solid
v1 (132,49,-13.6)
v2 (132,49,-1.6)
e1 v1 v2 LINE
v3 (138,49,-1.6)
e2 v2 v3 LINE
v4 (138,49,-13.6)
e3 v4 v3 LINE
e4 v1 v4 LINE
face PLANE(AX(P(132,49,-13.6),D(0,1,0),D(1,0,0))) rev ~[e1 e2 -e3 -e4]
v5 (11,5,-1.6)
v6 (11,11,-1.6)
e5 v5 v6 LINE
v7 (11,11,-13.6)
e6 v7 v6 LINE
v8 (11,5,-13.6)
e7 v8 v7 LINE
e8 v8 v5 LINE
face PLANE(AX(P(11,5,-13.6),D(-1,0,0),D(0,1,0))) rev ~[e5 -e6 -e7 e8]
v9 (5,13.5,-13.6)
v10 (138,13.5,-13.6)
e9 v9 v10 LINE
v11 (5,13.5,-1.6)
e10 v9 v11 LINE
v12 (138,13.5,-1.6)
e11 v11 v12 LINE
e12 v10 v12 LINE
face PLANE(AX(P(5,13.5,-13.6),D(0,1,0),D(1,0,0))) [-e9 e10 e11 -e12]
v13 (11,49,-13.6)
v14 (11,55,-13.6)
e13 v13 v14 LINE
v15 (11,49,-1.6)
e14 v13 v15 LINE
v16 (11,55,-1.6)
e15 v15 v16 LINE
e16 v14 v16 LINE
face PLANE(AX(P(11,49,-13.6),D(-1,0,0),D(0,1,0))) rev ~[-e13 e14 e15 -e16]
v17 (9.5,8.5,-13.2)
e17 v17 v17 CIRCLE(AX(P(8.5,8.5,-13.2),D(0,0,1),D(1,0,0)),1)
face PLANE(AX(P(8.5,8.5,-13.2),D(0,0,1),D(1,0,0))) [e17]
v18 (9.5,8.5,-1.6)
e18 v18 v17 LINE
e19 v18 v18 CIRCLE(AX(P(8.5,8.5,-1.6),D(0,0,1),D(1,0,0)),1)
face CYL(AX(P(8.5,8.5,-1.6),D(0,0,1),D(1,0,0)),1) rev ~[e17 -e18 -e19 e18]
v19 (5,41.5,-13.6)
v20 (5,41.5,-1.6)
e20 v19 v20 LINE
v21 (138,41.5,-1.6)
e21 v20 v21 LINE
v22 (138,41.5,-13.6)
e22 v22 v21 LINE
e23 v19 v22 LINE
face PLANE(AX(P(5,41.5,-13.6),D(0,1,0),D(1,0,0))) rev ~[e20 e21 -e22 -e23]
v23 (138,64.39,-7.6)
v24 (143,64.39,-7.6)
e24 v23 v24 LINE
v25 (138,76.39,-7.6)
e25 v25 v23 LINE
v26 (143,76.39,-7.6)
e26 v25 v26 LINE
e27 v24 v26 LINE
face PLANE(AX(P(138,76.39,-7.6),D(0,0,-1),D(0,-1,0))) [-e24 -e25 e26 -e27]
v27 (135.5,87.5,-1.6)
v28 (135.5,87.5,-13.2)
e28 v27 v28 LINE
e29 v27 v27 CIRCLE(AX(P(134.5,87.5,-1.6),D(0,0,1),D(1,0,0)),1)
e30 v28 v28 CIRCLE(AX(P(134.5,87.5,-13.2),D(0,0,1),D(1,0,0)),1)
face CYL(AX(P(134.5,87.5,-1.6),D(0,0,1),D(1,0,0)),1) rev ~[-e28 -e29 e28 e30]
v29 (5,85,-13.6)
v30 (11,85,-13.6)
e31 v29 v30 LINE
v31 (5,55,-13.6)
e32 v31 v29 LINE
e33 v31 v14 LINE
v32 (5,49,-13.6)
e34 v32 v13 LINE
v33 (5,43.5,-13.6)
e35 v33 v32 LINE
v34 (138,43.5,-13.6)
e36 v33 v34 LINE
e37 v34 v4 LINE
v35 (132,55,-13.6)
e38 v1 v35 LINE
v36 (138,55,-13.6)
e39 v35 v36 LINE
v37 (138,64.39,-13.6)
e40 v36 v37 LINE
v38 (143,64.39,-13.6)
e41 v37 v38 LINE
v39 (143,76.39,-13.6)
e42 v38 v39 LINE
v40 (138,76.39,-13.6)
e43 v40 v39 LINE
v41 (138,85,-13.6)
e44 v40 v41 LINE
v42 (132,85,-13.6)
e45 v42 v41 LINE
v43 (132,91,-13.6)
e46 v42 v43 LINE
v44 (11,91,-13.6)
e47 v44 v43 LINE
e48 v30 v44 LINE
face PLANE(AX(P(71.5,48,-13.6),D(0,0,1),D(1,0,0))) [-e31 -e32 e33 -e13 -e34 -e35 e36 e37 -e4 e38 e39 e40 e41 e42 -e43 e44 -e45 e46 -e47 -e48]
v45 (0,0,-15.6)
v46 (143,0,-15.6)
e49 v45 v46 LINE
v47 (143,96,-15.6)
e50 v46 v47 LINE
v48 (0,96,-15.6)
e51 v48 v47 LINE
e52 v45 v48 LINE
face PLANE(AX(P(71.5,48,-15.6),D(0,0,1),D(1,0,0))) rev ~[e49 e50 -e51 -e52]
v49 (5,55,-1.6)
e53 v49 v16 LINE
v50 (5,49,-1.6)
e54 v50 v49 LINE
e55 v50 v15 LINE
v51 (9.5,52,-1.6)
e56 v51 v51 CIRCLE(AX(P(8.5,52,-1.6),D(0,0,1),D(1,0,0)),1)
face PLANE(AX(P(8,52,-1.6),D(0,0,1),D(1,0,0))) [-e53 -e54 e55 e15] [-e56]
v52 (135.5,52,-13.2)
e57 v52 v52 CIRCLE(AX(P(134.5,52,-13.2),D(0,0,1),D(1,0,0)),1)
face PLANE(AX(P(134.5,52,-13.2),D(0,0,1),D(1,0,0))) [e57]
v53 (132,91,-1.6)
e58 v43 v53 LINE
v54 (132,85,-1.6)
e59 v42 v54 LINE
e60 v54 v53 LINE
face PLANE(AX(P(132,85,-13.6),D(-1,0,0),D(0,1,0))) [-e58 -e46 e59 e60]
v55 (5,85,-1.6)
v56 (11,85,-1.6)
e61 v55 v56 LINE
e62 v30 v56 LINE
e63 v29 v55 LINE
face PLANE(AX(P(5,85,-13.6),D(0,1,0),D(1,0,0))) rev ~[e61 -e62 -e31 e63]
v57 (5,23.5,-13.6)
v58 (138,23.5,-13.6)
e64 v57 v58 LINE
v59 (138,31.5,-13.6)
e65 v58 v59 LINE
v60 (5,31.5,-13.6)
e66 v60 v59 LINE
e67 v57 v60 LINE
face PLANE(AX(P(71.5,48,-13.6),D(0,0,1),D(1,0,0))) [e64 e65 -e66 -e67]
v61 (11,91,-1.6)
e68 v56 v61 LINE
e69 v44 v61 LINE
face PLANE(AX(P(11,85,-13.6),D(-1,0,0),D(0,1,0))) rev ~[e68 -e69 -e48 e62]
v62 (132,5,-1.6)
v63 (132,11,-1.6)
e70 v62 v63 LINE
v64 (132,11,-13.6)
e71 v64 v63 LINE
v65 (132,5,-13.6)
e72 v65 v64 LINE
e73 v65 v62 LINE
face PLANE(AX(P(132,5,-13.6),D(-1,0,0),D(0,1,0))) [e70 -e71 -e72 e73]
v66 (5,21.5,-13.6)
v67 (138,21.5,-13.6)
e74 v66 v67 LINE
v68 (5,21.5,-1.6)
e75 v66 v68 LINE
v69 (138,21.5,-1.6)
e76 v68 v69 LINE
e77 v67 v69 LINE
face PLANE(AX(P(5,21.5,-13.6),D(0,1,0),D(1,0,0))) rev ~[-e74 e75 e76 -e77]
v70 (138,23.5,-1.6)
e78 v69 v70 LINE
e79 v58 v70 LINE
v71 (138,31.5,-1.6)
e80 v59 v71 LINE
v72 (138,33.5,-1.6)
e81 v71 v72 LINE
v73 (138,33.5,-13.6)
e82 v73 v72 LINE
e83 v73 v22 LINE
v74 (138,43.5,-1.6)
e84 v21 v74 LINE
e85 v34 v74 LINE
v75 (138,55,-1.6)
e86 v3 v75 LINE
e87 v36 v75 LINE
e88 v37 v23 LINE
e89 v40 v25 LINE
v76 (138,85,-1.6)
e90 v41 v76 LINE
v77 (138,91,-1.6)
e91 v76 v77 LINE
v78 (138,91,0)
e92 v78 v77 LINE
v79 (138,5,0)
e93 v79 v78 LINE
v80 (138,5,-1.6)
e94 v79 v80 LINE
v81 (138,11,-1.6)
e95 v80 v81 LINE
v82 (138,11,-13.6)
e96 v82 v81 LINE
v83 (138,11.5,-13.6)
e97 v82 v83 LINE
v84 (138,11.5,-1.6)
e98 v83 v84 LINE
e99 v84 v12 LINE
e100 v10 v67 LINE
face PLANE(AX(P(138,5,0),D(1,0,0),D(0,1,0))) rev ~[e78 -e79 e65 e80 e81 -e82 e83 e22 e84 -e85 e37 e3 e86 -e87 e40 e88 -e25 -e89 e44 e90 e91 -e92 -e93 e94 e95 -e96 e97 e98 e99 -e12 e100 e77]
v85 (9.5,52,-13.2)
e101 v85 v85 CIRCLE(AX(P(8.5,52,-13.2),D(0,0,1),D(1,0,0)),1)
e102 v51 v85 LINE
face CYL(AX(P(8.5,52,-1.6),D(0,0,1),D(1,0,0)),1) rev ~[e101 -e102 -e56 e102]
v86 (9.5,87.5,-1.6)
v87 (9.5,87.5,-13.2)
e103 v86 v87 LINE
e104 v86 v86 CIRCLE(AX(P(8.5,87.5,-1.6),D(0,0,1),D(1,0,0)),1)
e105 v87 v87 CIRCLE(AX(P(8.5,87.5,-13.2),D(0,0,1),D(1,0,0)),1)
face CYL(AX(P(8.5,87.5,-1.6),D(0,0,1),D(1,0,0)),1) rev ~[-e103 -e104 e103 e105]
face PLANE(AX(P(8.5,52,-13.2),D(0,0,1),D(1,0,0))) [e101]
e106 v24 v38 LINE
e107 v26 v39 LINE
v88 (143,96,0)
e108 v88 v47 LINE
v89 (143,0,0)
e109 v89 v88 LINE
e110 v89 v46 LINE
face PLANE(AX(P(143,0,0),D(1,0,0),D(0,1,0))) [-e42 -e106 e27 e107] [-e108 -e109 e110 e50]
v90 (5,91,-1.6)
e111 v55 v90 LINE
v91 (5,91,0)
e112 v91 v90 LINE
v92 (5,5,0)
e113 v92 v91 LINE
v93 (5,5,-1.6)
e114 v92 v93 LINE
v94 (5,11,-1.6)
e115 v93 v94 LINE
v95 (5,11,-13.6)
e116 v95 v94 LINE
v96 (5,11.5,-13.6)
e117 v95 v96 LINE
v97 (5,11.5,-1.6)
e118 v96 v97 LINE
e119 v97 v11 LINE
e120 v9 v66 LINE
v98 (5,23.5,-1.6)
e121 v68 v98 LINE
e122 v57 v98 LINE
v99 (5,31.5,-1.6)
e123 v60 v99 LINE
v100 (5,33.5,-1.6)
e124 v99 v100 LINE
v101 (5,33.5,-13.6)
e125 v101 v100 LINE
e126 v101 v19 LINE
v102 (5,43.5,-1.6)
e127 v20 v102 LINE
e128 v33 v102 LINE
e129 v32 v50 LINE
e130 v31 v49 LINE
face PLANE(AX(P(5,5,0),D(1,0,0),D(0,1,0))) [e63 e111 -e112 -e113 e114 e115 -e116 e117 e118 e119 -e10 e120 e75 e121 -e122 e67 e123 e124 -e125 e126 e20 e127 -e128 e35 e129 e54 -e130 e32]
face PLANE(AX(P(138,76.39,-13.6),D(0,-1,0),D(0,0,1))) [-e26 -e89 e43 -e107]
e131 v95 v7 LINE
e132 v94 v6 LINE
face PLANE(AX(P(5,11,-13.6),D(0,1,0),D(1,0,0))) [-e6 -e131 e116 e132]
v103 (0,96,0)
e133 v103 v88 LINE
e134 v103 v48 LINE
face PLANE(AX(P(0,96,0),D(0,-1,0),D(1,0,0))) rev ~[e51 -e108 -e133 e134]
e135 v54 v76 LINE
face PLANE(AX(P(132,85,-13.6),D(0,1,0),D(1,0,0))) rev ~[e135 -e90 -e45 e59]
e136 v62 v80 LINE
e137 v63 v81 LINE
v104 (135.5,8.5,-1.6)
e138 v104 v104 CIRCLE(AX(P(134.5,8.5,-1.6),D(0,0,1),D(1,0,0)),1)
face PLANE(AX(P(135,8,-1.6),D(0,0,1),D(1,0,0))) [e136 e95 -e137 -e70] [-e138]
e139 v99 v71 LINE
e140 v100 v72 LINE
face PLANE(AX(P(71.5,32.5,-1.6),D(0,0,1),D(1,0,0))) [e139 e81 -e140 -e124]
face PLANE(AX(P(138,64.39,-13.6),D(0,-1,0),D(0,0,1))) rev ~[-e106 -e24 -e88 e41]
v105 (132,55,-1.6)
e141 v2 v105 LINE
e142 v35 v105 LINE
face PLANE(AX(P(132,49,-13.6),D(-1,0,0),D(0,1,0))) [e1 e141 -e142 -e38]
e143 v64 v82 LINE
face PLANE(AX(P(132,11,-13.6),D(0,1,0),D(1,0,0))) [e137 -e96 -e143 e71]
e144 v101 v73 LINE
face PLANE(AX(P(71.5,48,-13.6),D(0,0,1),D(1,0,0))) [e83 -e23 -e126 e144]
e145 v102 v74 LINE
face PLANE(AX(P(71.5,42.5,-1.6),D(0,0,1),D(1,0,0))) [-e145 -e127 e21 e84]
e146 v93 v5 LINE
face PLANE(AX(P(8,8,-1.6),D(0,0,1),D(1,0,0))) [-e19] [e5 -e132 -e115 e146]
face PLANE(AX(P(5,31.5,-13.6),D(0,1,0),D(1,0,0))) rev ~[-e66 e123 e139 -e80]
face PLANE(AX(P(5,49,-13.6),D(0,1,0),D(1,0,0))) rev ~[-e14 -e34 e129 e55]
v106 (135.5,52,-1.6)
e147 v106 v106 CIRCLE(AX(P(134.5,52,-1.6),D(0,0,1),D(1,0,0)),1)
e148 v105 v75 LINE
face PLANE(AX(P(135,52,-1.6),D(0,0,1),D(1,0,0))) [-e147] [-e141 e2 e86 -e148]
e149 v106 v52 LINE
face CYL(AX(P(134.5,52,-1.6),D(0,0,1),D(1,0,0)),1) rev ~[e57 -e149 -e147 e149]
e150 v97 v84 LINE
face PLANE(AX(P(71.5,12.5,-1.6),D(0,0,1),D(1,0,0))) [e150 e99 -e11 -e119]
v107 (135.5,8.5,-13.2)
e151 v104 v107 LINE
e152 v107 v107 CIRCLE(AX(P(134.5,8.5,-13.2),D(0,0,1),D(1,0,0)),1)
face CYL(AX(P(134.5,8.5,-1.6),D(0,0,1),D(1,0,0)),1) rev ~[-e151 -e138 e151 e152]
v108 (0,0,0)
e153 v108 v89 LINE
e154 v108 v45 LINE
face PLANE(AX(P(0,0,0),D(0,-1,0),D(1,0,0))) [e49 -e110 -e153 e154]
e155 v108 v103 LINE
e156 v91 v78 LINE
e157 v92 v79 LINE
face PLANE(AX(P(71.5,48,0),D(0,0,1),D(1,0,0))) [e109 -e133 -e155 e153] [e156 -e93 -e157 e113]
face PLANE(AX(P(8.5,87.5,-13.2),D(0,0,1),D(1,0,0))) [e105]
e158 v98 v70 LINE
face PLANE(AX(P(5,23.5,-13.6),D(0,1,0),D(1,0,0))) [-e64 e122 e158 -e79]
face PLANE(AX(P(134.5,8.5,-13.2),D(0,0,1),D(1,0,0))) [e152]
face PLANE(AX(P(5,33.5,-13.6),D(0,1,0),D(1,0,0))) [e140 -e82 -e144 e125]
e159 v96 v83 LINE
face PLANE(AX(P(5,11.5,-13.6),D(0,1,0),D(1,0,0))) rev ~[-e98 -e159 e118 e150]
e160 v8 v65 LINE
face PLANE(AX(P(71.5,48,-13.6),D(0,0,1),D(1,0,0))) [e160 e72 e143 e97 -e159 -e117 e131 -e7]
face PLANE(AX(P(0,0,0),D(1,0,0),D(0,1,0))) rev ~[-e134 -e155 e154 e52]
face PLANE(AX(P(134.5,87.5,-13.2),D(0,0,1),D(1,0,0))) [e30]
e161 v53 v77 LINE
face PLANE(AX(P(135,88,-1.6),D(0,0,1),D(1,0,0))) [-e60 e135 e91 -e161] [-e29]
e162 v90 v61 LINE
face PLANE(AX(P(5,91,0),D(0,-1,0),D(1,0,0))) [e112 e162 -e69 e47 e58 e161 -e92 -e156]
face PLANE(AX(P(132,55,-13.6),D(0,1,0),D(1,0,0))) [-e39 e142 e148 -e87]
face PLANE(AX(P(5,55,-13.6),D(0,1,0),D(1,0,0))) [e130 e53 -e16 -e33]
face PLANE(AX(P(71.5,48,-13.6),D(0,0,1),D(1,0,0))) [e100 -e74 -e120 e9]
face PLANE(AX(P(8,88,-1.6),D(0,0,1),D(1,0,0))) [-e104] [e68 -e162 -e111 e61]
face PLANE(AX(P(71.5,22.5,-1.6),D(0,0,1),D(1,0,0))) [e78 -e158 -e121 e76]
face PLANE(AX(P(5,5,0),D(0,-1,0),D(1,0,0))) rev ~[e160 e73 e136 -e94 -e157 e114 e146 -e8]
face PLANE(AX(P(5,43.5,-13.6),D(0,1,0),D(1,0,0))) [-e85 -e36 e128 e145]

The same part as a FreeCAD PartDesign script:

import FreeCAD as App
import Part
import Sketcher
from FreeCAD import Vector
Q = App.Units.Quantity


def add_polygon(sketch, points):
    """Adds a closed chain of lines whose ends are joined by coincident constraints."""
    first, n = sketch.GeometryCount, len(points)
    for a, b in zip(points, points[1:] + points[:1]):
        sketch.addGeometry(Part.LineSegment(App.Vector(*a, 0), App.Vector(*b, 0)), False)
    for i in range(n):
        sketch.addConstraint(Sketcher.Constraint("Coincident", first + i, 2, first + (i + 1) % n, 1))

doc = App.newDocument("Part")
body = doc.addObject("PartDesign::Body", "Body")

# Sketch on XY plane
sketch1 = doc.addObject("Sketcher::SketchObject", "Sketch")
body.addObject(sketch1)
sketch1.AttachmentSupport = (doc.XY_Plane, [""])
sketch1.MapMode = "FlatFace"
add_polygon(sketch1, [(0, 96), (0, 0), (143, 0), (143, 96)])  # lines 0-3
sketch1.addConstraint([
    Sketcher.Constraint("Vertical", 0),
    Sketcher.Constraint("Horizontal", 1),
    Sketcher.Constraint("Vertical", 2),
    Sketcher.Constraint("Horizontal", 3),
    Sketcher.Constraint("Coincident", 0, 2, -1, 1),
    Sketcher.Constraint("DistanceX", 1, 1, 1, 2, Q("143 mm")),
    Sketcher.Constraint("DistanceY", 0, 2, 0, 1, Q("96 mm")),
])
pad1 = doc.addObject("PartDesign::Pad", "Pad")
body.addObject(pad1)
pad1.Profile = sketch1
pad1.Length = 15.6
pad1.Reversed = True

# Sketch on XY plane
sketch2 = doc.addObject("Sketcher::SketchObject", "Sketch001")
body.addObject(sketch2)
sketch2.AttachmentSupport = (doc.XY_Plane, [""])
sketch2.MapMode = "FlatFace"
add_polygon(sketch2, [(5, 91), (5, 5), (138, 5), (138, 91)])  # lines 0-3
sketch2.addConstraint([
    Sketcher.Constraint("Vertical", 0),
    Sketcher.Constraint("Horizontal", 1),
    Sketcher.Constraint("Vertical", 2),
    Sketcher.Constraint("Horizontal", 3),
    Sketcher.Constraint("DistanceX", 1, 1, 1, 2, Q("133 mm")),
    Sketcher.Constraint("DistanceY", 0, 2, 0, 1, Q("86 mm")),
    Sketcher.Constraint("DistanceX", -1, 1, 0, 2, Q("5 mm")),
    Sketcher.Constraint("DistanceY", -1, 1, 0, 2, Q("5 mm")),
])
pocket1 = doc.addObject("PartDesign::Pocket", "Pocket")
body.addObject(pocket1)
pocket1.Profile = sketch2
pocket1.Length = 13.6

# Sketch on XY plane
sketch3 = doc.addObject("Sketcher::SketchObject", "Sketch002")
body.addObject(sketch3)
sketch3.AttachmentSupport = (doc.XY_Plane, [""])
sketch3.MapMode = "FlatFace"
sketch3.AttachmentOffset = App.Placement(Vector(0, 0, -13.6), App.Rotation())
add_polygon(sketch3, [(5, 11), (5, 5), (11, 5), (11, 11)])  # lines 0-3
add_polygon(sketch3, [(132, 11), (132, 5), (138, 5), (138, 11)])  # lines 4-7
add_polygon(sketch3, [(5, 55), (5, 49), (11, 49), (11, 55)])  # lines 8-11
add_polygon(sketch3, [(132, 55), (132, 49), (138, 49), (138, 55)])  # lines 12-15
add_polygon(sketch3, [(5, 91), (5, 85), (11, 85), (11, 91)])  # lines 16-19
add_polygon(sketch3, [(132, 91), (132, 85), (138, 85), (138, 91)])  # lines 20-23
sketch3.addConstraint([
    Sketcher.Constraint("Vertical", 0),
    Sketcher.Constraint("Horizontal", 1),
    Sketcher.Constraint("Vertical", 2),
    Sketcher.Constraint("Horizontal", 3),
    Sketcher.Constraint("Vertical", 4),
    Sketcher.Constraint("Horizontal", 5),
    Sketcher.Constraint("Vertical", 6),
    Sketcher.Constraint("Horizontal", 7),
    Sketcher.Constraint("Vertical", 8),
    Sketcher.Constraint("Horizontal", 9),
    Sketcher.Constraint("Vertical", 10),
    Sketcher.Constraint("Horizontal", 11),
    Sketcher.Constraint("Vertical", 12),
    Sketcher.Constraint("Horizontal", 13),
    Sketcher.Constraint("Vertical", 14),
    Sketcher.Constraint("Horizontal", 15),
    Sketcher.Constraint("Vertical", 16),
    Sketcher.Constraint("Horizontal", 17),
    Sketcher.Constraint("Vertical", 18),
    Sketcher.Constraint("Horizontal", 19),
    Sketcher.Constraint("Vertical", 20),
    Sketcher.Constraint("Horizontal", 21),
    Sketcher.Constraint("Vertical", 22),
    Sketcher.Constraint("Horizontal", 23),
    Sketcher.Constraint("Horizontal", 1, 2, 4, 2),
    Sketcher.Constraint("Horizontal", 3, 2, 6, 2),
    Sketcher.Constraint("Horizontal", 9, 2, 12, 2),
    Sketcher.Constraint("Horizontal", 11, 2, 14, 2),
    Sketcher.Constraint("Horizontal", 17, 2, 20, 2),
    Sketcher.Constraint("Horizontal", 19, 2, 22, 2),
    Sketcher.Constraint("Vertical", 3, 2, 8, 2),
    Sketcher.Constraint("Vertical", 2, 2, 9, 2),
    Sketcher.Constraint("Vertical", 7, 2, 12, 2),
    Sketcher.Constraint("Vertical", 6, 2, 13, 2),
    Sketcher.Constraint("Vertical", 11, 2, 16, 2),
    Sketcher.Constraint("Vertical", 10, 2, 17, 2),
    Sketcher.Constraint("Vertical", 15, 2, 20, 2),
    Sketcher.Constraint("Vertical", 14, 2, 21, 2),
    Sketcher.Constraint("Equal", 3, 5),
    Sketcher.Constraint("Equal", 23, 0),
    Sketcher.Constraint("Equal", 6, 8),
    Sketcher.Constraint("Equal", 14, 16),
    Sketcher.Constraint("DistanceX", 1, 1, 1, 2, Q("6 mm")),
    Sketcher.Constraint("DistanceX", -1, 1, 0, 2, Q("5 mm")),
    Sketcher.Constraint("DistanceY", -1, 1, 0, 2, Q("5 mm")),
    Sketcher.Constraint("DistanceX", -1, 1, 4, 2, Q("132 mm")),
    Sketcher.Constraint("DistanceY", -1, 1, 8, 2, Q("49 mm")),
    Sketcher.Constraint("DistanceY", -1, 1, 16, 2, Q("85 mm")),
])
pad2 = doc.addObject("PartDesign::Pad", "Pad001")
body.addObject(pad2)
pad2.Profile = sketch3
pad2.Length = 12

# Sketch on XY plane
sketch4 = doc.addObject("Sketcher::SketchObject", "Sketch003")
body.addObject(sketch4)
sketch4.AttachmentSupport = (doc.XY_Plane, [""])
sketch4.MapMode = "FlatFace"
sketch4.AttachmentOffset = App.Placement(Vector(0, 0, -1.6), App.Rotation())
sketch4.addGeometry([
    Part.Circle(Vector(8.5, 87.5, 0), Vector(0, 0, 1), 1),  # 0
    Part.Circle(Vector(8.5, 52, 0), Vector(0, 0, 1), 1),  # 1
    Part.Circle(Vector(8.5, 8.5, 0), Vector(0, 0, 1), 1),  # 2
    Part.Circle(Vector(134.5, 87.5, 0), Vector(0, 0, 1), 1),  # 3
    Part.Circle(Vector(134.5, 52, 0), Vector(0, 0, 1), 1),  # 4
    Part.Circle(Vector(134.5, 8.5, 0), Vector(0, 0, 1), 1),  # 5
], False)
sketch4.addConstraint([
    Sketcher.Constraint("Equal", 0, 1),
    Sketcher.Constraint("Equal", 1, 2),
    Sketcher.Constraint("Equal", 2, 3),
    Sketcher.Constraint("Equal", 3, 4),
    Sketcher.Constraint("Equal", 4, 5),
    Sketcher.Constraint("Horizontal", 0, 3, 3, 3),
    Sketcher.Constraint("Horizontal", 1, 3, 4, 3),
    Sketcher.Constraint("Horizontal", 2, 3, 5, 3),
    Sketcher.Constraint("Vertical", 0, 3, 1, 3),
    Sketcher.Constraint("Vertical", 1, 3, 2, 3),
    Sketcher.Constraint("Vertical", 3, 3, 4, 3),
    Sketcher.Constraint("Vertical", 4, 3, 5, 3),
    Sketcher.Constraint("Diameter", 0, Q("2 mm")),
    Sketcher.Constraint("DistanceY", -1, 1, 1, 3, Q("52 mm")),
    Sketcher.Constraint("DistanceY", 2, 3, 0, 3, Q("79 mm")),
    Sketcher.Constraint("DistanceX", 0, 3, 3, 3, Q("126 mm")),
    Sketcher.Constraint("DistanceX", -1, 1, 0, 3, Q("8.5 mm")),
    Sketcher.Constraint("DistanceY", -1, 1, 0, 3, Q("87.5 mm")),
])
pocket2 = doc.addObject("PartDesign::Pocket", "Pocket001")
body.addObject(pocket2)
pocket2.Profile = sketch4
pocket2.Length = 11.6

# Sketch on YZ plane
sketch5 = doc.addObject("Sketcher::SketchObject", "Sketch004")
body.addObject(sketch5)
sketch5.AttachmentSupport = (doc.YZ_Plane, [""])
sketch5.MapMode = "FlatFace"
sketch5.AttachmentOffset = App.Placement(Vector(0, 0, 138), App.Rotation())
add_polygon(sketch5, [(76.39, -7.6), (76.39, -13.6), (64.39, -13.6), (64.39, -7.6)])  # lines 0-3
sketch5.addConstraint([
    Sketcher.Constraint("Vertical", 0),
    Sketcher.Constraint("Horizontal", 1),
    Sketcher.Constraint("Vertical", 2),
    Sketcher.Constraint("Horizontal", 3),
    Sketcher.Constraint("DistanceX", 1, 2, 1, 1, Q("12 mm")),
    Sketcher.Constraint("DistanceY", 0, 2, 0, 1, Q("6 mm")),
    Sketcher.Constraint("DistanceY", 0, 2, -1, 1, Q("13.6 mm")),
    Sketcher.Constraint("DistanceX", -1, 1, 0, 2, Q("76.39 mm")),
])
pocket3 = doc.addObject("PartDesign::Pocket", "Pocket002")
body.addObject(pocket3)
pocket3.Profile = sketch5
pocket3.Type = "ThroughAll"
pocket3.Reversed = True

# Sketch on XY plane
sketch6 = doc.addObject("Sketcher::SketchObject", "Sketch005")
body.addObject(sketch6)
sketch6.AttachmentSupport = (doc.XY_Plane, [""])
sketch6.MapMode = "FlatFace"
sketch6.AttachmentOffset = App.Placement(Vector(0, 0, -13.6), App.Rotation())
add_polygon(sketch6, [(5, 13.5), (5, 11.5), (138, 11.5), (138, 13.5)])  # lines 0-3
add_polygon(sketch6, [(5, 23.5), (5, 21.5), (138, 21.5), (138, 23.5)])  # lines 4-7
add_polygon(sketch6, [(5, 33.5), (5, 31.5), (138, 31.5), (138, 33.5)])  # lines 8-11
add_polygon(sketch6, [(5, 43.5), (5, 41.5), (138, 41.5), (138, 43.5)])  # lines 12-15
sketch6.addConstraint([
    Sketcher.Constraint("Vertical", 0),
    Sketcher.Constraint("Horizontal", 1),
    Sketcher.Constraint("Vertical", 2),
    Sketcher.Constraint("Horizontal", 3),
    Sketcher.Constraint("Vertical", 4),
    Sketcher.Constraint("Horizontal", 5),
    Sketcher.Constraint("Vertical", 6),
    Sketcher.Constraint("Horizontal", 7),
    Sketcher.Constraint("Vertical", 8),
    Sketcher.Constraint("Horizontal", 9),
    Sketcher.Constraint("Vertical", 10),
    Sketcher.Constraint("Horizontal", 11),
    Sketcher.Constraint("Vertical", 12),
    Sketcher.Constraint("Horizontal", 13),
    Sketcher.Constraint("Vertical", 14),
    Sketcher.Constraint("Horizontal", 15),
    Sketcher.Constraint("Vertical", 3, 2, 4, 2),
    Sketcher.Constraint("Vertical", 2, 2, 5, 2),
    Sketcher.Constraint("Vertical", 7, 2, 8, 2),
    Sketcher.Constraint("Vertical", 6, 2, 9, 2),
    Sketcher.Constraint("Vertical", 11, 2, 12, 2),
    Sketcher.Constraint("Vertical", 10, 2, 13, 2),
    Sketcher.Constraint("Equal", 2, 4),
    Sketcher.Constraint("Equal", 6, 8),
    Sketcher.Constraint("Equal", 10, 12),
    Sketcher.Constraint("DistanceX", 1, 1, 1, 2, Q("133 mm")),
    Sketcher.Constraint("DistanceY", 0, 2, 0, 1, Q("2 mm")),
    Sketcher.Constraint("DistanceX", -1, 1, 0, 2, Q("5 mm")),
    Sketcher.Constraint("DistanceY", 3, 2, 4, 2, Q("8 mm")),
    Sketcher.Constraint("DistanceY", 7, 2, 8, 2, Q("8 mm")),
    Sketcher.Constraint("DistanceY", 11, 2, 12, 2, Q("8 mm")),
    Sketcher.Constraint("DistanceY", -1, 1, 0, 2, Q("11.5 mm")),
])
pad3 = doc.addObject("PartDesign::Pad", "Pad002")
body.addObject(pad3)
pad3.Profile = sketch6
pad3.Length = 12

doc.recompute()
